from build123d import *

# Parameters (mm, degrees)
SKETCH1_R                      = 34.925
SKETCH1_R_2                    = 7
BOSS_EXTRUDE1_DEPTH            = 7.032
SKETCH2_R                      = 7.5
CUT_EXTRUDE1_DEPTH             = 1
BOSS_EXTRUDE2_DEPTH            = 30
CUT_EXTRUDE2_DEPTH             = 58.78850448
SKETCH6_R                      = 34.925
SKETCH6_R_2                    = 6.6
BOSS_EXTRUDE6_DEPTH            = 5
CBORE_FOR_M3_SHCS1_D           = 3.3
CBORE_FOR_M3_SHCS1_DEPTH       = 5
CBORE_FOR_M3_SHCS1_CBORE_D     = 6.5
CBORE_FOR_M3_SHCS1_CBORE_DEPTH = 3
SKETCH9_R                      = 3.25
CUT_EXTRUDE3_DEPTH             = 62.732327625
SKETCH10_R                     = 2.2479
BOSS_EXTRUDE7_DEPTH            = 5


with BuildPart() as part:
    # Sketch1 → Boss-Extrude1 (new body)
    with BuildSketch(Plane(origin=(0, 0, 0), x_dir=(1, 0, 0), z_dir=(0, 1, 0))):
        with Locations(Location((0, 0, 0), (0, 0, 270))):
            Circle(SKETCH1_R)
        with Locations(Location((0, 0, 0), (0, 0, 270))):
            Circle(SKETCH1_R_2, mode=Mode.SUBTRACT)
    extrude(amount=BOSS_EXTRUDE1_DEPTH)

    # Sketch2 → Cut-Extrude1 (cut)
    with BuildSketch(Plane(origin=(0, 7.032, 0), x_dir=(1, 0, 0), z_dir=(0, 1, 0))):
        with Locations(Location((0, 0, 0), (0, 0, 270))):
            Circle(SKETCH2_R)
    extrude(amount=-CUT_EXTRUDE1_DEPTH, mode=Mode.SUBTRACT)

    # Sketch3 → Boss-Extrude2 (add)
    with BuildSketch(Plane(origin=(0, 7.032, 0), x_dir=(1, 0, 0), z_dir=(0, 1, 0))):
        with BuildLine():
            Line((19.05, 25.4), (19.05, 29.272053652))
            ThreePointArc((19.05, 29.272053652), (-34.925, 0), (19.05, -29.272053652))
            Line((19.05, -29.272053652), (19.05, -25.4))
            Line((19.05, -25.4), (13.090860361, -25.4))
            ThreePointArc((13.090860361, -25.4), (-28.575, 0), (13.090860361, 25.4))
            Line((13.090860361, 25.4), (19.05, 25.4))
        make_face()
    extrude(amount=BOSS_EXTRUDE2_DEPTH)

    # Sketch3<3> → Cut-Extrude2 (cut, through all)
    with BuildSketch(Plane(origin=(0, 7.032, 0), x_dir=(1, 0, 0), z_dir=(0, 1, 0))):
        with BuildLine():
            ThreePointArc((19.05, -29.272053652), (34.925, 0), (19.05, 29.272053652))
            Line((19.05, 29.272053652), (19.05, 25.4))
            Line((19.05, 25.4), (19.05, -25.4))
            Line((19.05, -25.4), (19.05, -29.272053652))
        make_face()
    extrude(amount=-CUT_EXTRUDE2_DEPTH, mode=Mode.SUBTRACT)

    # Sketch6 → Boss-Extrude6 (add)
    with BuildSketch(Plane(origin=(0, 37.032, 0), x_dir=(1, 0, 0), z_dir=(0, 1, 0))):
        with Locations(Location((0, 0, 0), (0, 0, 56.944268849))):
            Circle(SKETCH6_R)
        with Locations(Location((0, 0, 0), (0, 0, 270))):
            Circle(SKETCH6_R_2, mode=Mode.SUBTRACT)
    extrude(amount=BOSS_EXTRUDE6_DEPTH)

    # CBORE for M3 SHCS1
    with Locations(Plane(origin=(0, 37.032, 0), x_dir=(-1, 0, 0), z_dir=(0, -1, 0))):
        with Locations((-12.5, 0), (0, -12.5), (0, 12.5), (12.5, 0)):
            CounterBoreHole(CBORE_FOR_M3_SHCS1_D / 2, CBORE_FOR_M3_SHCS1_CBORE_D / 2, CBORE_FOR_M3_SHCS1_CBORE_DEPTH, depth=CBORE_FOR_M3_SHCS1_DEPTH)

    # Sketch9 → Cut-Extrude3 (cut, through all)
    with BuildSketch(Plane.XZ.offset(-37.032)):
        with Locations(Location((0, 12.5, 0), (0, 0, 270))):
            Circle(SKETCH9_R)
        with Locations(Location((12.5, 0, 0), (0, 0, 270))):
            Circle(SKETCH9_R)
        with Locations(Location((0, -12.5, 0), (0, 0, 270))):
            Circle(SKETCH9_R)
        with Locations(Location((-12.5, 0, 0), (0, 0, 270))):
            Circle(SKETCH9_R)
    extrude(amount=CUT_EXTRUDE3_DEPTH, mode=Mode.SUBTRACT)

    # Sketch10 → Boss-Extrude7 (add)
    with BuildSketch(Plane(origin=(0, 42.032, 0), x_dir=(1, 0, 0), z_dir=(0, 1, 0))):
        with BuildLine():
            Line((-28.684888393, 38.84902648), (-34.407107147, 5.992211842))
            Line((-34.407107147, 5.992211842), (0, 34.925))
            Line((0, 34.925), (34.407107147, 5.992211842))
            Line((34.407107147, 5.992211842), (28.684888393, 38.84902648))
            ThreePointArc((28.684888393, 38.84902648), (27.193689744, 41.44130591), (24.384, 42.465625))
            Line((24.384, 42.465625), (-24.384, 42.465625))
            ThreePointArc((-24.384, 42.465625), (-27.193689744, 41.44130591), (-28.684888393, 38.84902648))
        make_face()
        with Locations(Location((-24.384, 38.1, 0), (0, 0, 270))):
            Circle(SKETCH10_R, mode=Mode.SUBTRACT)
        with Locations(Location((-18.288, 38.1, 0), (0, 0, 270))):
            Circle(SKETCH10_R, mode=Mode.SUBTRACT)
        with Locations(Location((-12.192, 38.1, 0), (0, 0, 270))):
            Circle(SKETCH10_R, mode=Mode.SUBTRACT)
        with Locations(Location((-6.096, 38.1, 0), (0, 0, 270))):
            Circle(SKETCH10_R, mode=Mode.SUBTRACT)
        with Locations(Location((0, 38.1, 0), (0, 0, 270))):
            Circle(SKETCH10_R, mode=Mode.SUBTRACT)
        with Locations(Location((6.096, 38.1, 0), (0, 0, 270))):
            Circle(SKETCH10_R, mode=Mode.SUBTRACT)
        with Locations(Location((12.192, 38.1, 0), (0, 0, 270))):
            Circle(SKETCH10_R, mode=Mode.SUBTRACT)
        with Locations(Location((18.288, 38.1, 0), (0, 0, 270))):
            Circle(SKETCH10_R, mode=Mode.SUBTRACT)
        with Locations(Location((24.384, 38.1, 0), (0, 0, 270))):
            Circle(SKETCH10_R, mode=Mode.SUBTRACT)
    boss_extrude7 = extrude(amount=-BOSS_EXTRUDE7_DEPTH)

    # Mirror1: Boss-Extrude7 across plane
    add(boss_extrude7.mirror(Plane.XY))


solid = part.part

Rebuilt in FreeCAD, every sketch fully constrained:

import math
import FreeCAD as App
import Part
import Sketcher

doc = App.newDocument("Part")
body = doc.addObject("PartDesign::Body", "Body")

# Sketch on XZ plane
sketch1 = body.newObject("Sketcher::SketchObject", "Sketch")
sketch1.AttachmentSupport = (doc.getObject("XZ_Plane"), [""])
sketch1.MapMode = "FlatFace"
sketch1.addGeometry([
    Part.Circle(App.Vector(0, 0, 0), App.Vector(0, 0, 1), 35),
    Part.Circle(App.Vector(0, 0, 0), App.Vector(0, 0, 1), 7),
], False)
sketch1.addConstraint([
    Sketcher.Constraint("Coincident", 0, 3, -1, 1),
    Sketcher.Constraint("Coincident", 1, 3, -1, 1),
    Sketcher.Constraint("Diameter", 1, 14.0),
    Sketcher.Constraint("Diameter", 0, 69.85),
])
pad1 = body.newObject("PartDesign::Pad", "Pad")
pad1.Profile = sketch1
pad1.Length = 7.032
pad1.Reversed = True

# Sketch on XZ plane
sketch2 = body.newObject("Sketcher::SketchObject", "Sketch001")
sketch2.AttachmentSupport = (doc.getObject("XZ_Plane"), [""])
sketch2.MapMode = "FlatFace"
sketch2.AttachmentOffset = App.Placement(App.Vector(0, 0, -7.032), App.Rotation())
sketch2.addGeometry(Part.Circle(App.Vector(0, 0, 0), App.Vector(0, 0, 1), 8), False)
sketch2.addConstraint([
    Sketcher.Constraint("Coincident", 0, 3, -1, 1),
    Sketcher.Constraint("Diameter", 0, 15.0),
])
pocket1 = body.newObject("PartDesign::Pocket", "Pocket")
pocket1.Profile = sketch2
pocket1.Length = 1
pocket1.Reversed = True

# Sketch on XZ plane
sketch3 = body.newObject("Sketcher::SketchObject", "Sketch002")
sketch3.AttachmentSupport = (doc.getObject("XZ_Plane"), [""])
sketch3.MapMode = "FlatFace"
sketch3.AttachmentOffset = App.Placement(App.Vector(0, 0, -7.032), App.Rotation())
sketch3.addGeometry([
    Part.LineSegment(App.Vector(19.1, -25.4, 0), App.Vector(19.1, -29.3, 0)),  # 0
    Part.ArcOfCircle(Part.Circle(App.Vector(0, 0, 0), App.Vector(0, 0, 1), 34.9), math.radians(57), math.radians(303)),  # 1
    Part.LineSegment(App.Vector(19.1, 29.3, 0), App.Vector(19.1, 25.4, 0)),  # 2
    Part.LineSegment(App.Vector(19.1, 25.4, 0), App.Vector(13.1, 25.4, 0)),  # 3
    Part.ArcOfCircle(Part.Circle(App.Vector(0, 0, 0), App.Vector(0, 0, 1), 28.6), math.radians(63), math.radians(297)),  # 4
    Part.LineSegment(App.Vector(13.1, -25.4, 0), App.Vector(19.1, -25.4, 0)),  # 5
], False)
sketch3.addConstraint([
    Sketcher.Constraint("Coincident", 0, 2, 1, 2),
    Sketcher.Constraint("Coincident", 1, 1, 2, 1),
    Sketcher.Constraint("Coincident", 2, 2, 3, 1),
    Sketcher.Constraint("Coincident", 3, 2, 4, 1),
    Sketcher.Constraint("Coincident", 4, 2, 5, 1),
    Sketcher.Constraint("Coincident", 5, 2, 0, 1),
    Sketcher.Constraint("Vertical", 0),
    Sketcher.Constraint("Vertical", 2),
    Sketcher.Constraint("Horizontal", 3),
    Sketcher.Constraint("Horizontal", 5),
    Sketcher.Constraint("Coincident", 1, 3, -1, 1),
    Sketcher.Constraint("Coincident", 4, 3, -1, 1),
    Sketcher.Constraint("Symmetric", 2, 2, 5, 2, -1),
    Sketcher.Constraint("Radius", 1, 34.925),
    Sketcher.Constraint("Radius", 4, 28.575),
    Sketcher.Constraint("DistanceY", -1, 1, 2, 2, 25.4),
    Sketcher.Constraint("DistanceX", -1, 1, 0, 2, 19.05),
])
pad2 = body.newObject("PartDesign::Pad", "Pad001")
pad2.Profile = sketch3
pad2.Length = 30
pad2.Reversed = True

# Sketch on XZ plane
sketch4 = body.newObject("Sketcher::SketchObject", "Sketch003")
sketch4.AttachmentSupport = (doc.getObject("XZ_Plane"), [""])
sketch4.MapMode = "FlatFace"
sketch4.AttachmentOffset = App.Placement(App.Vector(0, 0, -7.032), App.Rotation())
sketch4.addGeometry([
    Part.ArcOfCircle(Part.Circle(App.Vector(0, 0, 0), App.Vector(0, 0, 1), 35), math.radians(-57), math.radians(57)),
    Part.LineSegment(App.Vector(19, -29, 0), App.Vector(19, 29, 0)),
], False)
sketch4.addConstraint([
    Sketcher.Constraint("Coincident", 0, 1, 1, 1),
    Sketcher.Constraint("Coincident", 1, 2, 0, 2),
    Sketcher.Constraint("Vertical", 1),
    Sketcher.Constraint("Coincident", 0, 3, -1, 1),
    Sketcher.Constraint("Radius", 0, 34.925),
    Sketcher.Constraint("DistanceX", -1, 1, 0, 1, 19.05),
])
pocket2 = body.newObject("PartDesign::Pocket", "Pocket001")
pocket2.Profile = sketch4
pocket2.Type = "ThroughAll"
pocket2.Reversed = True

# Sketch on XZ plane
sketch5 = body.newObject("Sketcher::SketchObject", "Sketch004")
sketch5.AttachmentSupport = (doc.getObject("XZ_Plane"), [""])
sketch5.MapMode = "FlatFace"
sketch5.AttachmentOffset = App.Placement(App.Vector(0, 0, -37.032), App.Rotation())
sketch5.addGeometry([
    Part.Circle(App.Vector(0, 0, 0), App.Vector(0, 0, 1), 35),
    Part.Circle(App.Vector(0, 0, 0), App.Vector(0, 0, 1), 7),
], False)
sketch5.addConstraint([
    Sketcher.Constraint("Coincident", 0, 3, -1, 1),
    Sketcher.Constraint("Coincident", 1, 3, -1, 1),
    Sketcher.Constraint("Diameter", 1, 13.2),
    Sketcher.Constraint("Diameter", 0, 69.85),
])
pad3 = body.newObject("PartDesign::Pad", "Pad002")
pad3.Profile = sketch5
pad3.Length = 5
pad3.Reversed = True

# Sketch on XZ plane
sketch6 = body.newObject("Sketcher::SketchObject", "Sketch005")
sketch6.AttachmentSupport = (doc.getObject("XZ_Plane"), [""])
sketch6.MapMode = "FlatFace"
sketch6.AttachmentOffset = App.Placement(App.Vector(0, 0, -37.032), App.Rotation())
sketch6.addGeometry([
    Part.Circle(App.Vector(12.5, 0, 0), App.Vector(0, 0, 1), 1.6),
    Part.Circle(App.Vector(0, 12.5, 0), App.Vector(0, 0, 1), 1.6),
    Part.Circle(App.Vector(0, -12.5, 0), App.Vector(0, 0, 1), 1.6),
    Part.Circle(App.Vector(-12.5, 0, 0), App.Vector(0, 0, 1), 1.6),
], False)
sketch6.addConstraint([
    Sketcher.Constraint("Equal", 0, 1),
    Sketcher.Constraint("Equal", 1, 2),
    Sketcher.Constraint("Equal", 2, 3),
    Sketcher.Constraint("Symmetric", 1, 3, 2, 3, -1, 1),
    Sketcher.Constraint("Symmetric", 0, 3, 3, 3, -1, 1),
    Sketcher.Constraint("PointOnObject", 0, 3, -1),
    Sketcher.Constraint("PointOnObject", 1, 3, -2),
    Sketcher.Constraint("Diameter", 0, 3.3),
    Sketcher.Constraint("DistanceY", 2, 3, 1, 3, 25.0),
    Sketcher.Constraint("DistanceX", 3, 3, 0, 3, 25.0),
])
doc.recompute()
hole = body.newObject("PartDesign::Hole", "Hole")
hole.Profile = sketch6
hole.ThreadType = "None"
hole.Diameter = 3.3
hole.DepthType = "Dimension"
hole.Depth = 5
hole.DrillPoint = "Flat"
hole.HoleCutType = "Counterbore"
hole.HoleCutDiameter = 6.5
hole.HoleCutDepth = 3

# Sketch on XZ plane
sketch7 = body.newObject("Sketcher::SketchObject", "Sketch006")
sketch7.AttachmentSupport = (doc.getObject("XZ_Plane"), [""])
sketch7.MapMode = "FlatFace"
sketch7.AttachmentOffset = App.Placement(App.Vector(0, 0, -37.032), App.Rotation())
sketch7.addGeometry([
    Part.Circle(App.Vector(0, 12.5, 0), App.Vector(0, 0, 1), 3.2),
    Part.Circle(App.Vector(12.5, 0, 0), App.Vector(0, 0, 1), 3.2),
    Part.Circle(App.Vector(0, -12.5, 0), App.Vector(0, 0, 1), 3.2),
    Part.Circle(App.Vector(-12.5, 0, 0), App.Vector(0, 0, 1), 3.2),
], False)
sketch7.addConstraint([
    Sketcher.Constraint("Equal", 0, 1),
    Sketcher.Constraint("Equal", 1, 2),
    Sketcher.Constraint("Equal", 2, 3),
    Sketcher.Constraint("Symmetric", 0, 3, 2, 3, -1, 1),
    Sketcher.Constraint("Symmetric", 1, 3, 3, 3, -1, 1),
    Sketcher.Constraint("PointOnObject", 0, 3, -2),
    Sketcher.Constraint("PointOnObject", 1, 3, -1),
    Sketcher.Constraint("Diameter", 0, 6.5),
    Sketcher.Constraint("DistanceY", 2, 3, 0, 3, 25.0),
    Sketcher.Constraint("DistanceX", 3, 3, 1, 3, 25.0),
])
pocket3 = body.newObject("PartDesign::Pocket", "Pocket002")
pocket3.Profile = sketch7
pocket3.Type = "ThroughAll"
pocket3.Reversed = True

# Sketch on XZ plane
sketch8 = body.newObject("Sketcher::SketchObject", "Sketch007")
sketch8.AttachmentSupport = (doc.getObject("XZ_Plane"), [""])
sketch8.MapMode = "FlatFace"
sketch8.AttachmentOffset = App.Placement(App.Vector(0, 0, -42.032), App.Rotation())
sketch8.addGeometry([
    Part.LineSegment(App.Vector(-28.7, -38.8, 0), App.Vector(-34.4, -6, 0)),  # 0
    Part.LineSegment(App.Vector(-34.4, -6, 0), App.Vector(0, -34.9, 0)),  # 1
    Part.LineSegment(App.Vector(0, -34.9, 0), App.Vector(34.4, -6, 0)),  # 2
    Part.LineSegment(App.Vector(34.4, -6, 0), App.Vector(28.7, -38.8, 0)),  # 3
    Part.ArcOfCircle(Part.Circle(App.Vector(24.4, -38.1, 0), App.Vector(0, 0, 1), 4.4), math.radians(-90), math.radians(-10)),  # 4
    Part.LineSegment(App.Vector(24.4, -42.5, 0), App.Vector(-24.4, -42.5, 0)),  # 5
    Part.ArcOfCircle(Part.Circle(App.Vector(-24.4, -38.1, 0), App.Vector(0, 0, 1), 4.4), math.radians(-170), math.radians(-90)),  # 6
    Part.Circle(App.Vector(-24.4, -38.1, 0), App.Vector(0, 0, 1), 2.2),  # 7
    Part.Circle(App.Vector(-18.3, -38.1, 0), App.Vector(0, 0, 1), 2.2),  # 8
    Part.Circle(App.Vector(-12.2, -38.1, 0), App.Vector(0, 0, 1), 2.2),  # 9
    Part.Circle(App.Vector(-6.1, -38.1, 0), App.Vector(0, 0, 1), 2.2),  # 10
    Part.Circle(App.Vector(0, -38.1, 0), App.Vector(0, 0, 1), 2.2),  # 11
    Part.Circle(App.Vector(6.1, -38.1, 0), App.Vector(0, 0, 1), 2.2),  # 12
    Part.Circle(App.Vector(12.2, -38.1, 0), App.Vector(0, 0, 1), 2.2),  # 13
    Part.Circle(App.Vector(18.3, -38.1, 0), App.Vector(0, 0, 1), 2.2),  # 14
    Part.Circle(App.Vector(24.4, -38.1, 0), App.Vector(0, 0, 1), 2.2),  # 15
], False)
sketch8.addConstraint([
    Sketcher.Constraint("Coincident", 0, 2, 1, 1),
    Sketcher.Constraint("Coincident", 1, 2, 2, 1),
    Sketcher.Constraint("Coincident", 2, 2, 3, 1),
    Sketcher.Constraint("Tangent", 3, 2, 4, 2),
    Sketcher.Constraint("Tangent", 4, 1, 5, 1),
    Sketcher.Constraint("Tangent", 5, 2, 6, 2),
    Sketcher.Constraint("Tangent", 6, 1, 0, 1),
    Sketcher.Constraint("Horizontal", 5),
    Sketcher.Constraint("Coincident", 7, 3, 6, 3),
    Sketcher.Constraint("Coincident", 15, 3, 4, 3),
    Sketcher.Constraint("Equal", 4, 6),
    Sketcher.Constraint("Equal", 7, 8),
    Sketcher.Constraint("Equal", 8, 9),
    Sketcher.Constraint("Equal", 9, 10),
    Sketcher.Constraint("Equal", 10, 11),
    Sketcher.Constraint("Equal", 11, 12),
    Sketcher.Constraint("Equal", 12, 13),
    Sketcher.Constraint("Equal", 13, 14),
    Sketcher.Constraint("Equal", 14, 15),
    Sketcher.Constraint("Symmetric", 10, 3, 12, 3, -2),
    Sketcher.Constraint("Symmetric", 9, 3, 13, 3, -2),
    Sketcher.Constraint("Symmetric", 8, 3, 14, 3, -2),
    Sketcher.Constraint("Symmetric", 0, 2, 2, 2, -2),
    Sketcher.Constraint("PointOnObject", 11, 3, -2),
    Sketcher.Constraint("PointOnObject", 1, 2, -2),
    Sketcher.Constraint("Horizontal", 7, 3, 8, 3),
    Sketcher.Constraint("Horizontal", 8, 3, 9, 3),
    Sketcher.Constraint("Horizontal", 9, 3, 10, 3),
    Sketcher.Constraint("Horizontal", 10, 3, 11, 3),
    Sketcher.Constraint("Horizontal", 3, 2, 6, 1),
    Sketcher.Constraint("Diameter", 7, 4.4958),
    Sketcher.Constraint("DistanceY", 4, 3, -1, 1, 38.1),
    Sketcher.Constraint("DistanceX", 5, 2, 5, 1, 48.768),
    Sketcher.Constraint("DistanceX", 10, 3, 4, 3, 30.48),
    Sketcher.Constraint("DistanceX", 8, 3, -1, 1, 18.288),
    Sketcher.Constraint("DistanceX", 9, 3, -1, 1, 12.192),
    Sketcher.Constraint("DistanceY", 1, 2, -1, 1, 34.925),
    Sketcher.Constraint("Radius", 4, 4.365625),
    Sketcher.Constraint("DistanceY", 4, 1, 3, 2, 3.616599),
    Sketcher.Constraint("DistanceY", 0, 2, -1, 1, 5.992212),
])
pad4 = body.newObject("PartDesign::Pad", "Pad003")
pad4.Profile = sketch8
pad4.Length = 5
doc.recompute()

mirrored = body.newObject("PartDesign::Mirrored", "Mirrored")
mirrored.Originals = [pad4]
mirrored.MirrorPlane = (doc.getObject("XY_Plane"), [""])
body.Tip = mirrored

doc.recompute()
